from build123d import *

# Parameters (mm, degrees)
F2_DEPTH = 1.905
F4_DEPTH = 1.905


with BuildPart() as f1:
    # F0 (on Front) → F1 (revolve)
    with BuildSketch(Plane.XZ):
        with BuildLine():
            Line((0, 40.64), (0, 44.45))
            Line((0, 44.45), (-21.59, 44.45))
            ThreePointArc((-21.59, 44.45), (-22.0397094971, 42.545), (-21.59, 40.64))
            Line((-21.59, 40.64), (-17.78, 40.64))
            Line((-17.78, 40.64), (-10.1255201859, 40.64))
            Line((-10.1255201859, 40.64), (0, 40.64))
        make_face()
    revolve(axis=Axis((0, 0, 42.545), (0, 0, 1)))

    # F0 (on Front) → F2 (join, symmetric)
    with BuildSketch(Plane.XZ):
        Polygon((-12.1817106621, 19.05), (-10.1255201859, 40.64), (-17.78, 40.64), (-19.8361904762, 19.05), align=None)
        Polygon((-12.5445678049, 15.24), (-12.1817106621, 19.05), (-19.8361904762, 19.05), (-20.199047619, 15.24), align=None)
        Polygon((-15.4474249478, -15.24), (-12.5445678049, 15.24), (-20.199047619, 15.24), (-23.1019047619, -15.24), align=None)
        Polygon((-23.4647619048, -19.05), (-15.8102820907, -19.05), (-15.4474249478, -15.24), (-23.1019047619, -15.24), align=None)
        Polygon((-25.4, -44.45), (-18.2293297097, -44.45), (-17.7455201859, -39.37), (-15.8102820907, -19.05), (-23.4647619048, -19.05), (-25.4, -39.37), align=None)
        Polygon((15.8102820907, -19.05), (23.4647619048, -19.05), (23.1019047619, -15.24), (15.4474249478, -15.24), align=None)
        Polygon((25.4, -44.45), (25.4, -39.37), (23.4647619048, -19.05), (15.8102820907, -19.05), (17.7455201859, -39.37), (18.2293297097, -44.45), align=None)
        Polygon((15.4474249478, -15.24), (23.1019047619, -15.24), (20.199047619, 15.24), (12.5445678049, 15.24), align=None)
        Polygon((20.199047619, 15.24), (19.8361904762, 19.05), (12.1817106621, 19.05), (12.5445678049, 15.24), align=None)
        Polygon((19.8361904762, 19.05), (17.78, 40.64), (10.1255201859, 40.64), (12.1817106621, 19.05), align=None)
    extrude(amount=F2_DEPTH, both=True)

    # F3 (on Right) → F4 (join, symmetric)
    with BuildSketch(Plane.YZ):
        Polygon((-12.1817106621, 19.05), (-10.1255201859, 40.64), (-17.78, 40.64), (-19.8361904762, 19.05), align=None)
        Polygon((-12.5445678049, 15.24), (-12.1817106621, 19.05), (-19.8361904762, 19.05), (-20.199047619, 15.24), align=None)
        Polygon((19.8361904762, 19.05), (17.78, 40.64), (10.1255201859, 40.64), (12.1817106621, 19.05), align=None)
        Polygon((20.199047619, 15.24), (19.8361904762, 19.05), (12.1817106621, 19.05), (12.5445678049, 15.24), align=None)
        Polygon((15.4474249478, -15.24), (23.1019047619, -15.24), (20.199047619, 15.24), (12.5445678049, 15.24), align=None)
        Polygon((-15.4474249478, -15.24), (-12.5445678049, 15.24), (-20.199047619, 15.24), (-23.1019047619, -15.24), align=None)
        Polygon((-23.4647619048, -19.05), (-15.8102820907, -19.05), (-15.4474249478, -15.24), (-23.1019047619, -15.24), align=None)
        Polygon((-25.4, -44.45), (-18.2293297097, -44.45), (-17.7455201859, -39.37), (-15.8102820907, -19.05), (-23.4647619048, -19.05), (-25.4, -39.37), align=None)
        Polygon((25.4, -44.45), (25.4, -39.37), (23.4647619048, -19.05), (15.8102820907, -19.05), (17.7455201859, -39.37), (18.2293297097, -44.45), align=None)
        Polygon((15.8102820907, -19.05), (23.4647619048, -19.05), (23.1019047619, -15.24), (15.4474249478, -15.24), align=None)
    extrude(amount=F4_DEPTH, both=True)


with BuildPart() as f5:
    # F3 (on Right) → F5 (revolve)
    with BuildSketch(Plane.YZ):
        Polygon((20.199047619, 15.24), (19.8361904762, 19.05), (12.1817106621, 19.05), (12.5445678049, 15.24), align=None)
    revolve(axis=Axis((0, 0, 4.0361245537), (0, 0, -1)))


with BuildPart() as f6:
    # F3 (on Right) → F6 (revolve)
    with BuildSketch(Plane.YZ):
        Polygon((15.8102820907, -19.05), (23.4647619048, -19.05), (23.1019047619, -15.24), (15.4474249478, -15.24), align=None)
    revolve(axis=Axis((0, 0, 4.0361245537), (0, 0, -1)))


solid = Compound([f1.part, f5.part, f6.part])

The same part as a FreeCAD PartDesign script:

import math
import FreeCAD as App
import Part
import Sketcher
from FreeCAD import Vector
Q = App.Units.Quantity

doc = App.newDocument("Part")
params = doc.addObject("Spreadsheet::Sheet", "Params")
for row, (alias, value) in enumerate([
    ("sketch1_width", "0.85 in"),
    ("sketch1_height", "0.15 in"),
    ("revolution_angle", "360 deg"),
    ("sketch2_height", "0.2 in"),
    ("pad1_length", "0.15 in"),
    ("sketch3_height", "0.2 in"),
    ("pad2_length", "0.15 in"),
    ("revolution2_angle", "360 deg"),
    ("revolution3_angle", "360 deg"),
], start=1):
    params.set(f"A{row}", alias)
    params.set(f"B{row}", "=" + value)
    params.setAlias(f"B{row}", alias)

body = doc.addObject("PartDesign::Body", "Body")

# Sketch on XZ plane
sketch1 = body.newObject("Sketcher::SketchObject", "Sketch")
sketch1.AttachmentSupport = (doc.getObject("XZ_Plane"), [""])
sketch1.MapMode = "FlatFace"
sketch1.addGeometry([
    Part.LineSegment(Vector(0, 40.6, 0), Vector(0, 44.5, 0)),
    Part.LineSegment(Vector(0, 44.5, 0), Vector(-21.6, 44.5, 0)),
    Part.ArcOfCircle(Part.Circle(Vector(-17.8, 42.5, 0), Vector(0, 0, 1), 4.3), math.radians(153), math.radians(207)),
    Part.LineSegment(Vector(-21.6, 40.6, 0), Vector(0, 40.6, 0)),
], False)
sketch1.addConstraint([
    Sketcher.Constraint("Coincident", 0, 2, 1, 1),
    Sketcher.Constraint("Coincident", 1, 2, 2, 1),
    Sketcher.Constraint("Coincident", 2, 2, 3, 1),
    Sketcher.Constraint("Coincident", 3, 2, 0, 1),
    Sketcher.Constraint("Vertical", 0),
    Sketcher.Constraint("Horizontal", 1),
    Sketcher.Constraint("Horizontal", 3),
    Sketcher.Constraint("PointOnObject", 0, 2, -2),
    Sketcher.Constraint("Vertical", 1, 2, 2, 2),
    Sketcher.Constraint("DistanceX", 1, 2, 1, 1, Q("0.85 in")),
    Sketcher.Constraint("DistanceY", 0, 1, 0, 2, Q("0.15 in")),
    Sketcher.Constraint("DistanceX", 2, 3, -1, 1, Q("0.7 in")),
    Sketcher.Constraint("DistanceY", -1, 1, 2, 2, Q("1.6 in")),
])
sketch1.setExpression("Constraints[9]", "Params.sketch1_width")
sketch1.setExpression("Constraints[10]", "Params.sketch1_height")
revolution = body.newObject("PartDesign::Revolution", "Revolution")
revolution.Profile = sketch1
revolution.ReferenceAxis = (sketch1, ["V_Axis"])
revolution.setExpression("Angle", "Params.revolution_angle")

# Sketch on XZ plane
sketch2 = body.newObject("Sketcher::SketchObject", "Sketch001")
sketch2.AttachmentSupport = (doc.getObject("XZ_Plane"), [""])
sketch2.MapMode = "FlatFace"
sketch2.addGeometry([
    Part.LineSegment(Vector(-12.2, 19.1, 0), Vector(-10.1, 40.6, 0)),  # 0
    Part.LineSegment(Vector(-10.1, 40.6, 0), Vector(-17.8, 40.6, 0)),  # 1
    Part.LineSegment(Vector(-17.8, 40.6, 0), Vector(-19.8, 19.1, 0)),  # 2
    Part.LineSegment(Vector(-19.8, 19.1, 0), Vector(-20.2, 15.2, 0)),  # 3
    Part.LineSegment(Vector(-20.2, 15.2, 0), Vector(-23.1, -15.2, 0)),  # 4
    Part.LineSegment(Vector(-23.1, -15.2, 0), Vector(-23.5, -19.1, 0)),  # 5
    Part.LineSegment(Vector(-23.5, -19.1, 0), Vector(-25.4, -39.4, 0)),  # 6
    Part.LineSegment(Vector(-25.4, -39.4, 0), Vector(-25.4, -44.5, 0)),  # 7
    Part.LineSegment(Vector(-25.4, -44.5, 0), Vector(-18.2, -44.5, 0)),  # 8
    Part.LineSegment(Vector(-18.2, -44.5, 0), Vector(-15.8, -19.1, 0)),  # 9
    Part.LineSegment(Vector(-15.8, -19.1, 0), Vector(-15.4, -15.2, 0)),  # 10
    Part.LineSegment(Vector(-15.4, -15.2, 0), Vector(-12.5, 15.2, 0)),  # 11
    Part.LineSegment(Vector(-12.5, 15.2, 0), Vector(-12.2, 19.1, 0)),  # 12
    Part.LineSegment(Vector(23.5, -19.1, 0), Vector(23.1, -15.2, 0)),  # 13
    Part.LineSegment(Vector(23.1, -15.2, 0), Vector(20.2, 15.2, 0)),  # 14
    Part.LineSegment(Vector(20.2, 15.2, 0), Vector(19.8, 19.1, 0)),  # 15
    Part.LineSegment(Vector(19.8, 19.1, 0), Vector(17.8, 40.6, 0)),  # 16
    Part.LineSegment(Vector(17.8, 40.6, 0), Vector(10.1, 40.6, 0)),  # 17
    Part.LineSegment(Vector(10.1, 40.6, 0), Vector(12.2, 19.1, 0)),  # 18
    Part.LineSegment(Vector(12.2, 19.1, 0), Vector(12.5, 15.2, 0)),  # 19
    Part.LineSegment(Vector(12.5, 15.2, 0), Vector(15.4, -15.2, 0)),  # 20
    Part.LineSegment(Vector(15.4, -15.2, 0), Vector(15.8, -19.1, 0)),  # 21
    Part.LineSegment(Vector(15.8, -19.1, 0), Vector(18.2, -44.5, 0)),  # 22
    Part.LineSegment(Vector(18.2, -44.5, 0), Vector(25.4, -44.5, 0)),  # 23
    Part.LineSegment(Vector(25.4, -44.5, 0), Vector(25.4, -39.4, 0)),  # 24
    Part.LineSegment(Vector(25.4, -39.4, 0), Vector(23.5, -19.1, 0)),  # 25
], False)
sketch2.addConstraint([
    Sketcher.Constraint("Coincident", 0, 2, 1, 1),
    Sketcher.Constraint("Coincident", 1, 2, 2, 1),
    Sketcher.Constraint("Coincident", 2, 2, 3, 1),
    Sketcher.Constraint("Coincident", 3, 2, 4, 1),
    Sketcher.Constraint("Coincident", 4, 2, 5, 1),
    Sketcher.Constraint("Coincident", 5, 2, 6, 1),
    Sketcher.Constraint("Coincident", 6, 2, 7, 1),
    Sketcher.Constraint("Coincident", 7, 2, 8, 1),
    Sketcher.Constraint("Coincident", 8, 2, 9, 1),
    Sketcher.Constraint("Coincident", 9, 2, 10, 1),
    Sketcher.Constraint("Coincident", 10, 2, 11, 1),
    Sketcher.Constraint("Coincident", 11, 2, 12, 1),
    Sketcher.Constraint("Coincident", 12, 2, 0, 1),
    Sketcher.Constraint("Coincident", 13, 2, 14, 1),
    Sketcher.Constraint("Coincident", 14, 2, 15, 1),
    Sketcher.Constraint("Coincident", 15, 2, 16, 1),
    Sketcher.Constraint("Coincident", 16, 2, 17, 1),
    Sketcher.Constraint("Coincident", 17, 2, 18, 1),
    Sketcher.Constraint("Coincident", 18, 2, 19, 1),
    Sketcher.Constraint("Coincident", 19, 2, 20, 1),
    Sketcher.Constraint("Coincident", 20, 2, 21, 1),
    Sketcher.Constraint("Coincident", 21, 2, 22, 1),
    Sketcher.Constraint("Coincident", 22, 2, 23, 1),
    Sketcher.Constraint("Coincident", 23, 2, 24, 1),
    Sketcher.Constraint("Coincident", 24, 2, 25, 1),
    Sketcher.Constraint("Coincident", 25, 2, 13, 1),
    Sketcher.Constraint("Horizontal", 1),
    Sketcher.Constraint("Vertical", 7),
    Sketcher.Constraint("Horizontal", 8),
    Sketcher.Constraint("Horizontal", 17),
    Sketcher.Constraint("Horizontal", 23),
    Sketcher.Constraint("Vertical", 24),
    Sketcher.Constraint("Symmetric", 4, 2, 13, 2, -2),
    Sketcher.Constraint("Symmetric", 3, 2, 14, 2, -2),
    Sketcher.Constraint("Symmetric", 2, 2, 15, 2, -2),
    Sketcher.Constraint("Symmetric", 1, 2, 16, 2, -2),
    Sketcher.Constraint("Symmetric", 12, 2, 18, 2, -2),
    Sketcher.Constraint("Symmetric", 11, 2, 19, 2, -2),
    Sketcher.Constraint("Symmetric", 10, 2, 20, 2, -2),
    Sketcher.Constraint("Symmetric", 9, 2, 21, 2, -2),
    Sketcher.Constraint("Symmetric", 8, 2, 22, 2, -2),
    Sketcher.Constraint("Symmetric", 6, 2, 24, 2, -2),
    Sketcher.Constraint("Symmetric", 5, 2, 25, 2, -2),
    Sketcher.Constraint("Parallel", 0, 2),
    Sketcher.Constraint("Parallel", 2, 3),
    Sketcher.Constraint("Parallel", 3, 4),
    Sketcher.Constraint("Parallel", 4, 5),
    Sketcher.Constraint("Parallel", 5, 6),
    Sketcher.Constraint("Parallel", 6, 9),
    Sketcher.Constraint("Parallel", 9, 10),
    Sketcher.Constraint("Parallel", 10, 11),
    Sketcher.Constraint("Parallel", 11, 12),
    Sketcher.Constraint("Parallel", 16, 18),
    Sketcher.Constraint("Horizontal", 5, 2, 9, 2),
    Sketcher.Constraint("Horizontal", 4, 2, 10, 2),
    Sketcher.Constraint("Horizontal", 3, 2, 11, 2),
    Sketcher.Constraint("Horizontal", 2, 2, 12, 2),
    Sketcher.Constraint("Equal", 3, 5),
    Sketcher.Constraint("DistanceY", 7, 2, 7, 1, Q("0.2 in")),
    Sketcher.Constraint("DistanceX", 6, 2, -1, 1, Q("1 in")),
    Sketcher.Constraint("DistanceY", 3, 2, 1, 2, Q("1 in")),
    Sketcher.Constraint("DistanceY", 7, 2, 5, 2, Q("1 in")),
    Sketcher.Constraint("DistanceY", -1, 1, 0, 2, Q("1.6 in")),
    Sketcher.Constraint("DistanceX", 1, 2, -1, 1, Q("0.7 in")),
    Sketcher.Constraint("DistanceY", 4, 2, -1, 1, Q("0.6 in")),
    Sketcher.Constraint("DistanceY", 5, 2, 2, 2, Q("1.5 in")),
    Sketcher.Constraint("DistanceX", 1, 2, 1, 1, Q("7.65448 mm")),
])
sketch2.setExpression("Constraints[58]", "Params.sketch2_height")
pad1 = body.newObject("PartDesign::Pad", "Pad")
pad1.Profile = sketch2
pad1.setExpression("Length", "Params.pad1_length")
pad1.Midplane = True

# Sketch on YZ plane
sketch3 = body.newObject("Sketcher::SketchObject", "Sketch002")
sketch3.AttachmentSupport = (doc.getObject("YZ_Plane"), [""])
sketch3.MapMode = "FlatFace"
sketch3.addGeometry([
    Part.LineSegment(Vector(-12.2, 19.1, 0), Vector(-10.1, 40.6, 0)),  # 0
    Part.LineSegment(Vector(-10.1, 40.6, 0), Vector(-17.8, 40.6, 0)),  # 1
    Part.LineSegment(Vector(-17.8, 40.6, 0), Vector(-19.8, 19.1, 0)),  # 2
    Part.LineSegment(Vector(-19.8, 19.1, 0), Vector(-20.2, 15.2, 0)),  # 3
    Part.LineSegment(Vector(-20.2, 15.2, 0), Vector(-23.1, -15.2, 0)),  # 4
    Part.LineSegment(Vector(-23.1, -15.2, 0), Vector(-23.5, -19.1, 0)),  # 5
    Part.LineSegment(Vector(-23.5, -19.1, 0), Vector(-25.4, -39.4, 0)),  # 6
    Part.LineSegment(Vector(-25.4, -39.4, 0), Vector(-25.4, -44.5, 0)),  # 7
    Part.LineSegment(Vector(-25.4, -44.5, 0), Vector(-18.2, -44.5, 0)),  # 8
    Part.LineSegment(Vector(-18.2, -44.5, 0), Vector(-15.8, -19.1, 0)),  # 9
    Part.LineSegment(Vector(-15.8, -19.1, 0), Vector(-15.4, -15.2, 0)),  # 10
    Part.LineSegment(Vector(-15.4, -15.2, 0), Vector(-12.5, 15.2, 0)),  # 11
    Part.LineSegment(Vector(-12.5, 15.2, 0), Vector(-12.2, 19.1, 0)),  # 12
    Part.LineSegment(Vector(19.8, 19.1, 0), Vector(17.8, 40.6, 0)),  # 13
    Part.LineSegment(Vector(17.8, 40.6, 0), Vector(10.1, 40.6, 0)),  # 14
    Part.LineSegment(Vector(10.1, 40.6, 0), Vector(12.2, 19.1, 0)),  # 15
    Part.LineSegment(Vector(12.2, 19.1, 0), Vector(12.5, 15.2, 0)),  # 16
    Part.LineSegment(Vector(12.5, 15.2, 0), Vector(15.4, -15.2, 0)),  # 17
    Part.LineSegment(Vector(15.4, -15.2, 0), Vector(15.8, -19.1, 0)),  # 18
    Part.LineSegment(Vector(15.8, -19.1, 0), Vector(18.2, -44.5, 0)),  # 19
    Part.LineSegment(Vector(18.2, -44.5, 0), Vector(25.4, -44.5, 0)),  # 20
    Part.LineSegment(Vector(25.4, -44.5, 0), Vector(25.4, -39.4, 0)),  # 21
    Part.LineSegment(Vector(25.4, -39.4, 0), Vector(23.5, -19.1, 0)),  # 22
    Part.LineSegment(Vector(23.5, -19.1, 0), Vector(23.1, -15.2, 0)),  # 23
    Part.LineSegment(Vector(23.1, -15.2, 0), Vector(20.2, 15.2, 0)),  # 24
    Part.LineSegment(Vector(20.2, 15.2, 0), Vector(19.8, 19.1, 0)),  # 25
], False)
sketch3.addConstraint([
    Sketcher.Constraint("Coincident", 0, 2, 1, 1),
    Sketcher.Constraint("Coincident", 1, 2, 2, 1),
    Sketcher.Constraint("Coincident", 2, 2, 3, 1),
    Sketcher.Constraint("Coincident", 3, 2, 4, 1),
    Sketcher.Constraint("Coincident", 4, 2, 5, 1),
    Sketcher.Constraint("Coincident", 5, 2, 6, 1),
    Sketcher.Constraint("Coincident", 6, 2, 7, 1),
    Sketcher.Constraint("Coincident", 7, 2, 8, 1),
    Sketcher.Constraint("Coincident", 8, 2, 9, 1),
    Sketcher.Constraint("Coincident", 9, 2, 10, 1),
    Sketcher.Constraint("Coincident", 10, 2, 11, 1),
    Sketcher.Constraint("Coincident", 11, 2, 12, 1),
    Sketcher.Constraint("Coincident", 12, 2, 0, 1),
    Sketcher.Constraint("Coincident", 13, 2, 14, 1),
    Sketcher.Constraint("Coincident", 14, 2, 15, 1),
    Sketcher.Constraint("Coincident", 15, 2, 16, 1),
    Sketcher.Constraint("Coincident", 16, 2, 17, 1),
    Sketcher.Constraint("Coincident", 17, 2, 18, 1),
    Sketcher.Constraint("Coincident", 18, 2, 19, 1),
    Sketcher.Constraint("Coincident", 19, 2, 20, 1),
    Sketcher.Constraint("Coincident", 20, 2, 21, 1),
    Sketcher.Constraint("Coincident", 21, 2, 22, 1),
    Sketcher.Constraint("Coincident", 22, 2, 23, 1),
    Sketcher.Constraint("Coincident", 23, 2, 24, 1),
    Sketcher.Constraint("Coincident", 24, 2, 25, 1),
    Sketcher.Constraint("Coincident", 25, 2, 13, 1),
    Sketcher.Constraint("Horizontal", 1),
    Sketcher.Constraint("Vertical", 7),
    Sketcher.Constraint("Horizontal", 8),
    Sketcher.Constraint("Horizontal", 14),
    Sketcher.Constraint("Horizontal", 20),
    Sketcher.Constraint("Vertical", 21),
    Sketcher.Constraint("Symmetric", 1, 2, 13, 2, -2),
    Sketcher.Constraint("Symmetric", 12, 2, 15, 2, -2),
    Sketcher.Constraint("Symmetric", 11, 2, 16, 2, -2),
    Sketcher.Constraint("Symmetric", 10, 2, 17, 2, -2),
    Sketcher.Constraint("Symmetric", 9, 2, 18, 2, -2),
    Sketcher.Constraint("Symmetric", 8, 2, 19, 2, -2),
    Sketcher.Constraint("Symmetric", 6, 2, 21, 2, -2),
    Sketcher.Constraint("Symmetric", 5, 2, 22, 2, -2),
    Sketcher.Constraint("Symmetric", 4, 2, 23, 2, -2),
    Sketcher.Constraint("Symmetric", 3, 2, 24, 2, -2),
    Sketcher.Constraint("Symmetric", 2, 2, 25, 2, -2),
    Sketcher.Constraint("Parallel", 0, 2),
    Sketcher.Constraint("Parallel", 2, 3),
    Sketcher.Constraint("Parallel", 3, 4),
    Sketcher.Constraint("Parallel", 4, 5),
    Sketcher.Constraint("Parallel", 5, 6),
    Sketcher.Constraint("Parallel", 6, 9),
    Sketcher.Constraint("Parallel", 9, 10),
    Sketcher.Constraint("Parallel", 10, 11),
    Sketcher.Constraint("Parallel", 11, 12),
    Sketcher.Constraint("Parallel", 13, 15),
    Sketcher.Constraint("Horizontal", 5, 2, 9, 2),
    Sketcher.Constraint("Horizontal", 4, 2, 10, 2),
    Sketcher.Constraint("Horizontal", 3, 2, 11, 2),
    Sketcher.Constraint("Horizontal", 2, 2, 12, 2),
    Sketcher.Constraint("Equal", 3, 5),
    Sketcher.Constraint("DistanceY", 7, 2, 7, 1, Q("0.2 in")),
    Sketcher.Constraint("DistanceX", 6, 2, -1, 1, Q("1 in")),
    Sketcher.Constraint("DistanceY", 3, 2, 1, 2, Q("1 in")),
    Sketcher.Constraint("DistanceY", 7, 2, 5, 2, Q("1 in")),
    Sketcher.Constraint("DistanceY", -1, 1, 0, 2, Q("1.6 in")),
    Sketcher.Constraint("DistanceX", 1, 2, -1, 1, Q("0.7 in")),
    Sketcher.Constraint("DistanceY", 4, 2, -1, 1, Q("0.6 in")),
    Sketcher.Constraint("DistanceY", 5, 2, 2, 2, Q("1.5 in")),
    Sketcher.Constraint("DistanceX", 1, 2, 1, 1, Q("7.65448 mm")),
])
sketch3.setExpression("Constraints[58]", "Params.sketch3_height")
pad2 = body.newObject("PartDesign::Pad", "Pad001")
pad2.Profile = sketch3
pad2.setExpression("Length", "Params.pad2_length")
pad2.Midplane = True
body2 = doc.addObject("PartDesign::Body", "Body001")

# Sketch on YZ plane
sketch4 = body2.newObject("Sketcher::SketchObject", "Sketch003")
sketch4.AttachmentSupport = (doc.getObject("YZ_Plane001"), [""])
sketch4.MapMode = "FlatFace"
sketch4.addGeometry([
    Part.LineSegment(Vector(20.2, 15.2, 0), Vector(19.8, 19.1, 0)),
    Part.LineSegment(Vector(19.8, 19.1, 0), Vector(12.2, 19.1, 0)),
    Part.LineSegment(Vector(12.2, 19.1, 0), Vector(12.5, 15.2, 0)),
    Part.LineSegment(Vector(12.5, 15.2, 0), Vector(20.2, 15.2, 0)),
], False)
sketch4.addConstraint([
    Sketcher.Constraint("Coincident", 0, 2, 1, 1),
    Sketcher.Constraint("Coincident", 1, 2, 2, 1),
    Sketcher.Constraint("Coincident", 2, 2, 3, 1),
    Sketcher.Constraint("Coincident", 3, 2, 0, 1),
    Sketcher.Constraint("Horizontal", 1),
    Sketcher.Constraint("Horizontal", 3),
    Sketcher.Constraint("Parallel", 0, 2),
    Sketcher.Constraint("DistanceY", -1, 1, 2, 2, Q("0.6 in")),
    Sketcher.Constraint("DistanceY", -1, 1, 0, 2, Q("0.75 in")),
    Sketcher.Constraint("DistanceX", 1, 2, 1, 1, Q("7.65448 mm")),
    Sketcher.Constraint("Distance", 0, Q("3.82724 mm")),
    Sketcher.Constraint("DistanceX", -1, 1, 0, 2, Q("19.83619 mm")),
])
revolution2 = body2.newObject("PartDesign::Revolution", "Revolution001")
revolution2.Profile = sketch4
revolution2.ReferenceAxis = (sketch4, ["V_Axis"])
revolution2.setExpression("Angle", "Params.revolution2_angle")
body3 = doc.addObject("PartDesign::Body", "Body002")

# Sketch on YZ plane
sketch5 = body3.newObject("Sketcher::SketchObject", "Sketch004")
sketch5.AttachmentSupport = (doc.getObject("YZ_Plane002"), [""])
sketch5.MapMode = "FlatFace"
sketch5.addGeometry([
    Part.LineSegment(Vector(15.8, -19.1, 0), Vector(23.5, -19.1, 0)),
    Part.LineSegment(Vector(23.5, -19.1, 0), Vector(23.1, -15.2, 0)),
    Part.LineSegment(Vector(23.1, -15.2, 0), Vector(15.4, -15.2, 0)),
    Part.LineSegment(Vector(15.4, -15.2, 0), Vector(15.8, -19.1, 0)),
], False)
sketch5.addConstraint([
    Sketcher.Constraint("Coincident", 0, 2, 1, 1),
    Sketcher.Constraint("Coincident", 1, 2, 2, 1),
    Sketcher.Constraint("Coincident", 2, 2, 3, 1),
    Sketcher.Constraint("Coincident", 3, 2, 0, 1),
    Sketcher.Constraint("Horizontal", 0),
    Sketcher.Constraint("Horizontal", 2),
    Sketcher.Constraint("Parallel", 1, 3),
    Sketcher.Constraint("DistanceY", 1, 2, -1, 1, Q("0.6 in")),
    Sketcher.Constraint("DistanceY", 0, 2, -1, 1, Q("0.75 in")),
    Sketcher.Constraint("DistanceX", 0, 1, 0, 2, Q("7.65448 mm")),
    Sketcher.Constraint("Distance", 1, Q("3.82724 mm")),
    Sketcher.Constraint("DistanceX", -1, 1, 0, 2, Q("23.464762 mm")),
])
revolution3 = body3.newObject("PartDesign::Revolution", "Revolution002")
revolution3.Profile = sketch5
revolution3.ReferenceAxis = (sketch5, ["V_Axis"])
revolution3.setExpression("Angle", "Params.revolution3_angle")

doc.recompute()
